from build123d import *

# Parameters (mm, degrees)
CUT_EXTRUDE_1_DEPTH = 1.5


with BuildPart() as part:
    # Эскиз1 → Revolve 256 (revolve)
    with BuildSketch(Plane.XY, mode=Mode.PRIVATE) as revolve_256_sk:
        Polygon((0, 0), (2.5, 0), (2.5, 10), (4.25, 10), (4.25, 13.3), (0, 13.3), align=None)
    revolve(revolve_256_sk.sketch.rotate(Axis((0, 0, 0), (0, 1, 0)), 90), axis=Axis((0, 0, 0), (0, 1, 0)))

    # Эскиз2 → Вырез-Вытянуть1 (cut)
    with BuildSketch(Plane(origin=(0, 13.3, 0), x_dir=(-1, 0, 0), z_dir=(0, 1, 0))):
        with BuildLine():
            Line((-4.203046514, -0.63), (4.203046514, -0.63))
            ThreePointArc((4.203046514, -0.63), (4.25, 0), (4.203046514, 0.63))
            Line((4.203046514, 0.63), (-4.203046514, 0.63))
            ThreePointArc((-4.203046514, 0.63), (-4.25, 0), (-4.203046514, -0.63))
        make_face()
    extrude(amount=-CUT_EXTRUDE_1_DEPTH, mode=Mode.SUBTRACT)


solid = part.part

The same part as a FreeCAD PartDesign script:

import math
import FreeCAD as App
import Part
import Sketcher

V = App.Vector

doc = App.newDocument("Part")
body = doc.addObject("PartDesign::Body", "Body")

# Sketch on XY plane
sketch1 = body.newObject("Sketcher::SketchObject", "Sketch")
sketch1.AttachmentSupport = (doc.getObject("XY_Plane"), [""])
sketch1.MapMode = "FlatFace"
sketch1.addGeometry(Part.LineSegment(V(0, 0, 0), V(2.5, 0, 0)), False)
sketch1.addGeometry(Part.LineSegment(V(2.5, 0, 0), V(2.5, 10, 0)), False)
sketch1.addGeometry(Part.LineSegment(V(2.5, 10, 0), V(4.25, 10, 0)), False)
sketch1.addGeometry(Part.LineSegment(V(4.25, 10, 0), V(4.25, 13.3, 0)), False)
sketch1.addGeometry(Part.LineSegment(V(4.25, 13.3, 0), V(0, 13.3, 0)), False)
sketch1.addGeometry(Part.LineSegment(V(0, 13.3, 0), V(0, 0, 0)), False)
sketch1.addConstraint(Sketcher.Constraint("Coincident", 0, 2, 1, 1))
sketch1.addConstraint(Sketcher.Constraint("Coincident", 1, 2, 2, 1))
sketch1.addConstraint(Sketcher.Constraint("Coincident", 2, 2, 3, 1))
sketch1.addConstraint(Sketcher.Constraint("Coincident", 3, 2, 4, 1))
sketch1.addConstraint(Sketcher.Constraint("Coincident", 4, 2, 5, 1))
sketch1.addConstraint(Sketcher.Constraint("Coincident", 5, 2, 0, 1))
sketch1.addConstraint(Sketcher.Constraint("Horizontal", 0))
sketch1.addConstraint(Sketcher.Constraint("Vertical", 1))
sketch1.addConstraint(Sketcher.Constraint("Horizontal", 2))
sketch1.addConstraint(Sketcher.Constraint("Vertical", 3))
sketch1.addConstraint(Sketcher.Constraint("Horizontal", 4))
sketch1.addConstraint(Sketcher.Constraint("Vertical", 5))
sketch1.addConstraint(Sketcher.Constraint("Coincident", 5, 2, -1, 1))
sketch1.addConstraint(Sketcher.Constraint("DistanceY", 1, 1, 1, 2, 10.0))
sketch1.addConstraint(Sketcher.Constraint("DistanceX", 0, 1, 0, 2, 2.5))
sketch1.addConstraint(Sketcher.Constraint("DistanceY", 3, 1, 3, 2, 3.3))
sketch1.addConstraint(Sketcher.Constraint("DistanceX", 2, 1, 2, 2, 1.75))
revolution = body.newObject("PartDesign::Revolution", "Revolution")
revolution.Profile = sketch1
revolution.ReferenceAxis = (sketch1, ["V_Axis"])
revolution.Angle = 360

# Sketch on XZ plane
sketch2 = body.newObject("Sketcher::SketchObject", "Sketch001")
sketch2.AttachmentSupport = (doc.getObject("XZ_Plane"), [""])
sketch2.MapMode = "FlatFace"
sketch2.AttachmentOffset = App.Placement(V(0, 0, -13.3), App.Rotation())
sketch2.addGeometry(Part.LineSegment(V(4.203047, -0.63, 0), V(-4.203047, -0.63, 0)), False)
sketch2.addGeometry(Part.ArcOfCircle(Part.Circle(V(0, 0, 0), V(0, 0, 1), 4.25), math.radians(171.475327), math.radians(188.524673)), False)
sketch2.addGeometry(Part.LineSegment(V(-4.203047, 0.63, 0), V(4.203047, 0.63, 0)), False)
sketch2.addGeometry(Part.ArcOfCircle(Part.Circle(V(0, 0, 0), V(0, 0, 1), 4.25), math.radians(-8.524673), math.radians(8.524673)), False)
sketch2.addConstraint(Sketcher.Constraint("Coincident", 0, 2, 1, 2))
sketch2.addConstraint(Sketcher.Constraint("Coincident", 1, 1, 2, 1))
sketch2.addConstraint(Sketcher.Constraint("Coincident", 2, 2, 3, 2))
sketch2.addConstraint(Sketcher.Constraint("Coincident", 3, 1, 0, 1))
sketch2.addConstraint(Sketcher.Constraint("Horizontal", 0))
sketch2.addConstraint(Sketcher.Constraint("Horizontal", 2))
sketch2.addConstraint(Sketcher.Constraint("Coincident", 1, 3, -1, 1))
sketch2.addConstraint(Sketcher.Constraint("Coincident", 3, 3, -1, 1))
sketch2.addConstraint(Sketcher.Constraint("Equal", 1, 3))
sketch2.addConstraint(Sketcher.Constraint("Vertical", 0, 2, 1, 1))
sketch2.addConstraint(Sketcher.Constraint("Radius", 1, 4.25))
sketch2.addConstraint(Sketcher.Constraint("DistanceY", 0, 2, -1, 1, 0.63))
pocket1 = body.newObject("PartDesign::Pocket", "Pocket")
pocket1.Profile = sketch2
pocket1.Length = 1.5
pocket1.Reversed = True

doc.recompute()
